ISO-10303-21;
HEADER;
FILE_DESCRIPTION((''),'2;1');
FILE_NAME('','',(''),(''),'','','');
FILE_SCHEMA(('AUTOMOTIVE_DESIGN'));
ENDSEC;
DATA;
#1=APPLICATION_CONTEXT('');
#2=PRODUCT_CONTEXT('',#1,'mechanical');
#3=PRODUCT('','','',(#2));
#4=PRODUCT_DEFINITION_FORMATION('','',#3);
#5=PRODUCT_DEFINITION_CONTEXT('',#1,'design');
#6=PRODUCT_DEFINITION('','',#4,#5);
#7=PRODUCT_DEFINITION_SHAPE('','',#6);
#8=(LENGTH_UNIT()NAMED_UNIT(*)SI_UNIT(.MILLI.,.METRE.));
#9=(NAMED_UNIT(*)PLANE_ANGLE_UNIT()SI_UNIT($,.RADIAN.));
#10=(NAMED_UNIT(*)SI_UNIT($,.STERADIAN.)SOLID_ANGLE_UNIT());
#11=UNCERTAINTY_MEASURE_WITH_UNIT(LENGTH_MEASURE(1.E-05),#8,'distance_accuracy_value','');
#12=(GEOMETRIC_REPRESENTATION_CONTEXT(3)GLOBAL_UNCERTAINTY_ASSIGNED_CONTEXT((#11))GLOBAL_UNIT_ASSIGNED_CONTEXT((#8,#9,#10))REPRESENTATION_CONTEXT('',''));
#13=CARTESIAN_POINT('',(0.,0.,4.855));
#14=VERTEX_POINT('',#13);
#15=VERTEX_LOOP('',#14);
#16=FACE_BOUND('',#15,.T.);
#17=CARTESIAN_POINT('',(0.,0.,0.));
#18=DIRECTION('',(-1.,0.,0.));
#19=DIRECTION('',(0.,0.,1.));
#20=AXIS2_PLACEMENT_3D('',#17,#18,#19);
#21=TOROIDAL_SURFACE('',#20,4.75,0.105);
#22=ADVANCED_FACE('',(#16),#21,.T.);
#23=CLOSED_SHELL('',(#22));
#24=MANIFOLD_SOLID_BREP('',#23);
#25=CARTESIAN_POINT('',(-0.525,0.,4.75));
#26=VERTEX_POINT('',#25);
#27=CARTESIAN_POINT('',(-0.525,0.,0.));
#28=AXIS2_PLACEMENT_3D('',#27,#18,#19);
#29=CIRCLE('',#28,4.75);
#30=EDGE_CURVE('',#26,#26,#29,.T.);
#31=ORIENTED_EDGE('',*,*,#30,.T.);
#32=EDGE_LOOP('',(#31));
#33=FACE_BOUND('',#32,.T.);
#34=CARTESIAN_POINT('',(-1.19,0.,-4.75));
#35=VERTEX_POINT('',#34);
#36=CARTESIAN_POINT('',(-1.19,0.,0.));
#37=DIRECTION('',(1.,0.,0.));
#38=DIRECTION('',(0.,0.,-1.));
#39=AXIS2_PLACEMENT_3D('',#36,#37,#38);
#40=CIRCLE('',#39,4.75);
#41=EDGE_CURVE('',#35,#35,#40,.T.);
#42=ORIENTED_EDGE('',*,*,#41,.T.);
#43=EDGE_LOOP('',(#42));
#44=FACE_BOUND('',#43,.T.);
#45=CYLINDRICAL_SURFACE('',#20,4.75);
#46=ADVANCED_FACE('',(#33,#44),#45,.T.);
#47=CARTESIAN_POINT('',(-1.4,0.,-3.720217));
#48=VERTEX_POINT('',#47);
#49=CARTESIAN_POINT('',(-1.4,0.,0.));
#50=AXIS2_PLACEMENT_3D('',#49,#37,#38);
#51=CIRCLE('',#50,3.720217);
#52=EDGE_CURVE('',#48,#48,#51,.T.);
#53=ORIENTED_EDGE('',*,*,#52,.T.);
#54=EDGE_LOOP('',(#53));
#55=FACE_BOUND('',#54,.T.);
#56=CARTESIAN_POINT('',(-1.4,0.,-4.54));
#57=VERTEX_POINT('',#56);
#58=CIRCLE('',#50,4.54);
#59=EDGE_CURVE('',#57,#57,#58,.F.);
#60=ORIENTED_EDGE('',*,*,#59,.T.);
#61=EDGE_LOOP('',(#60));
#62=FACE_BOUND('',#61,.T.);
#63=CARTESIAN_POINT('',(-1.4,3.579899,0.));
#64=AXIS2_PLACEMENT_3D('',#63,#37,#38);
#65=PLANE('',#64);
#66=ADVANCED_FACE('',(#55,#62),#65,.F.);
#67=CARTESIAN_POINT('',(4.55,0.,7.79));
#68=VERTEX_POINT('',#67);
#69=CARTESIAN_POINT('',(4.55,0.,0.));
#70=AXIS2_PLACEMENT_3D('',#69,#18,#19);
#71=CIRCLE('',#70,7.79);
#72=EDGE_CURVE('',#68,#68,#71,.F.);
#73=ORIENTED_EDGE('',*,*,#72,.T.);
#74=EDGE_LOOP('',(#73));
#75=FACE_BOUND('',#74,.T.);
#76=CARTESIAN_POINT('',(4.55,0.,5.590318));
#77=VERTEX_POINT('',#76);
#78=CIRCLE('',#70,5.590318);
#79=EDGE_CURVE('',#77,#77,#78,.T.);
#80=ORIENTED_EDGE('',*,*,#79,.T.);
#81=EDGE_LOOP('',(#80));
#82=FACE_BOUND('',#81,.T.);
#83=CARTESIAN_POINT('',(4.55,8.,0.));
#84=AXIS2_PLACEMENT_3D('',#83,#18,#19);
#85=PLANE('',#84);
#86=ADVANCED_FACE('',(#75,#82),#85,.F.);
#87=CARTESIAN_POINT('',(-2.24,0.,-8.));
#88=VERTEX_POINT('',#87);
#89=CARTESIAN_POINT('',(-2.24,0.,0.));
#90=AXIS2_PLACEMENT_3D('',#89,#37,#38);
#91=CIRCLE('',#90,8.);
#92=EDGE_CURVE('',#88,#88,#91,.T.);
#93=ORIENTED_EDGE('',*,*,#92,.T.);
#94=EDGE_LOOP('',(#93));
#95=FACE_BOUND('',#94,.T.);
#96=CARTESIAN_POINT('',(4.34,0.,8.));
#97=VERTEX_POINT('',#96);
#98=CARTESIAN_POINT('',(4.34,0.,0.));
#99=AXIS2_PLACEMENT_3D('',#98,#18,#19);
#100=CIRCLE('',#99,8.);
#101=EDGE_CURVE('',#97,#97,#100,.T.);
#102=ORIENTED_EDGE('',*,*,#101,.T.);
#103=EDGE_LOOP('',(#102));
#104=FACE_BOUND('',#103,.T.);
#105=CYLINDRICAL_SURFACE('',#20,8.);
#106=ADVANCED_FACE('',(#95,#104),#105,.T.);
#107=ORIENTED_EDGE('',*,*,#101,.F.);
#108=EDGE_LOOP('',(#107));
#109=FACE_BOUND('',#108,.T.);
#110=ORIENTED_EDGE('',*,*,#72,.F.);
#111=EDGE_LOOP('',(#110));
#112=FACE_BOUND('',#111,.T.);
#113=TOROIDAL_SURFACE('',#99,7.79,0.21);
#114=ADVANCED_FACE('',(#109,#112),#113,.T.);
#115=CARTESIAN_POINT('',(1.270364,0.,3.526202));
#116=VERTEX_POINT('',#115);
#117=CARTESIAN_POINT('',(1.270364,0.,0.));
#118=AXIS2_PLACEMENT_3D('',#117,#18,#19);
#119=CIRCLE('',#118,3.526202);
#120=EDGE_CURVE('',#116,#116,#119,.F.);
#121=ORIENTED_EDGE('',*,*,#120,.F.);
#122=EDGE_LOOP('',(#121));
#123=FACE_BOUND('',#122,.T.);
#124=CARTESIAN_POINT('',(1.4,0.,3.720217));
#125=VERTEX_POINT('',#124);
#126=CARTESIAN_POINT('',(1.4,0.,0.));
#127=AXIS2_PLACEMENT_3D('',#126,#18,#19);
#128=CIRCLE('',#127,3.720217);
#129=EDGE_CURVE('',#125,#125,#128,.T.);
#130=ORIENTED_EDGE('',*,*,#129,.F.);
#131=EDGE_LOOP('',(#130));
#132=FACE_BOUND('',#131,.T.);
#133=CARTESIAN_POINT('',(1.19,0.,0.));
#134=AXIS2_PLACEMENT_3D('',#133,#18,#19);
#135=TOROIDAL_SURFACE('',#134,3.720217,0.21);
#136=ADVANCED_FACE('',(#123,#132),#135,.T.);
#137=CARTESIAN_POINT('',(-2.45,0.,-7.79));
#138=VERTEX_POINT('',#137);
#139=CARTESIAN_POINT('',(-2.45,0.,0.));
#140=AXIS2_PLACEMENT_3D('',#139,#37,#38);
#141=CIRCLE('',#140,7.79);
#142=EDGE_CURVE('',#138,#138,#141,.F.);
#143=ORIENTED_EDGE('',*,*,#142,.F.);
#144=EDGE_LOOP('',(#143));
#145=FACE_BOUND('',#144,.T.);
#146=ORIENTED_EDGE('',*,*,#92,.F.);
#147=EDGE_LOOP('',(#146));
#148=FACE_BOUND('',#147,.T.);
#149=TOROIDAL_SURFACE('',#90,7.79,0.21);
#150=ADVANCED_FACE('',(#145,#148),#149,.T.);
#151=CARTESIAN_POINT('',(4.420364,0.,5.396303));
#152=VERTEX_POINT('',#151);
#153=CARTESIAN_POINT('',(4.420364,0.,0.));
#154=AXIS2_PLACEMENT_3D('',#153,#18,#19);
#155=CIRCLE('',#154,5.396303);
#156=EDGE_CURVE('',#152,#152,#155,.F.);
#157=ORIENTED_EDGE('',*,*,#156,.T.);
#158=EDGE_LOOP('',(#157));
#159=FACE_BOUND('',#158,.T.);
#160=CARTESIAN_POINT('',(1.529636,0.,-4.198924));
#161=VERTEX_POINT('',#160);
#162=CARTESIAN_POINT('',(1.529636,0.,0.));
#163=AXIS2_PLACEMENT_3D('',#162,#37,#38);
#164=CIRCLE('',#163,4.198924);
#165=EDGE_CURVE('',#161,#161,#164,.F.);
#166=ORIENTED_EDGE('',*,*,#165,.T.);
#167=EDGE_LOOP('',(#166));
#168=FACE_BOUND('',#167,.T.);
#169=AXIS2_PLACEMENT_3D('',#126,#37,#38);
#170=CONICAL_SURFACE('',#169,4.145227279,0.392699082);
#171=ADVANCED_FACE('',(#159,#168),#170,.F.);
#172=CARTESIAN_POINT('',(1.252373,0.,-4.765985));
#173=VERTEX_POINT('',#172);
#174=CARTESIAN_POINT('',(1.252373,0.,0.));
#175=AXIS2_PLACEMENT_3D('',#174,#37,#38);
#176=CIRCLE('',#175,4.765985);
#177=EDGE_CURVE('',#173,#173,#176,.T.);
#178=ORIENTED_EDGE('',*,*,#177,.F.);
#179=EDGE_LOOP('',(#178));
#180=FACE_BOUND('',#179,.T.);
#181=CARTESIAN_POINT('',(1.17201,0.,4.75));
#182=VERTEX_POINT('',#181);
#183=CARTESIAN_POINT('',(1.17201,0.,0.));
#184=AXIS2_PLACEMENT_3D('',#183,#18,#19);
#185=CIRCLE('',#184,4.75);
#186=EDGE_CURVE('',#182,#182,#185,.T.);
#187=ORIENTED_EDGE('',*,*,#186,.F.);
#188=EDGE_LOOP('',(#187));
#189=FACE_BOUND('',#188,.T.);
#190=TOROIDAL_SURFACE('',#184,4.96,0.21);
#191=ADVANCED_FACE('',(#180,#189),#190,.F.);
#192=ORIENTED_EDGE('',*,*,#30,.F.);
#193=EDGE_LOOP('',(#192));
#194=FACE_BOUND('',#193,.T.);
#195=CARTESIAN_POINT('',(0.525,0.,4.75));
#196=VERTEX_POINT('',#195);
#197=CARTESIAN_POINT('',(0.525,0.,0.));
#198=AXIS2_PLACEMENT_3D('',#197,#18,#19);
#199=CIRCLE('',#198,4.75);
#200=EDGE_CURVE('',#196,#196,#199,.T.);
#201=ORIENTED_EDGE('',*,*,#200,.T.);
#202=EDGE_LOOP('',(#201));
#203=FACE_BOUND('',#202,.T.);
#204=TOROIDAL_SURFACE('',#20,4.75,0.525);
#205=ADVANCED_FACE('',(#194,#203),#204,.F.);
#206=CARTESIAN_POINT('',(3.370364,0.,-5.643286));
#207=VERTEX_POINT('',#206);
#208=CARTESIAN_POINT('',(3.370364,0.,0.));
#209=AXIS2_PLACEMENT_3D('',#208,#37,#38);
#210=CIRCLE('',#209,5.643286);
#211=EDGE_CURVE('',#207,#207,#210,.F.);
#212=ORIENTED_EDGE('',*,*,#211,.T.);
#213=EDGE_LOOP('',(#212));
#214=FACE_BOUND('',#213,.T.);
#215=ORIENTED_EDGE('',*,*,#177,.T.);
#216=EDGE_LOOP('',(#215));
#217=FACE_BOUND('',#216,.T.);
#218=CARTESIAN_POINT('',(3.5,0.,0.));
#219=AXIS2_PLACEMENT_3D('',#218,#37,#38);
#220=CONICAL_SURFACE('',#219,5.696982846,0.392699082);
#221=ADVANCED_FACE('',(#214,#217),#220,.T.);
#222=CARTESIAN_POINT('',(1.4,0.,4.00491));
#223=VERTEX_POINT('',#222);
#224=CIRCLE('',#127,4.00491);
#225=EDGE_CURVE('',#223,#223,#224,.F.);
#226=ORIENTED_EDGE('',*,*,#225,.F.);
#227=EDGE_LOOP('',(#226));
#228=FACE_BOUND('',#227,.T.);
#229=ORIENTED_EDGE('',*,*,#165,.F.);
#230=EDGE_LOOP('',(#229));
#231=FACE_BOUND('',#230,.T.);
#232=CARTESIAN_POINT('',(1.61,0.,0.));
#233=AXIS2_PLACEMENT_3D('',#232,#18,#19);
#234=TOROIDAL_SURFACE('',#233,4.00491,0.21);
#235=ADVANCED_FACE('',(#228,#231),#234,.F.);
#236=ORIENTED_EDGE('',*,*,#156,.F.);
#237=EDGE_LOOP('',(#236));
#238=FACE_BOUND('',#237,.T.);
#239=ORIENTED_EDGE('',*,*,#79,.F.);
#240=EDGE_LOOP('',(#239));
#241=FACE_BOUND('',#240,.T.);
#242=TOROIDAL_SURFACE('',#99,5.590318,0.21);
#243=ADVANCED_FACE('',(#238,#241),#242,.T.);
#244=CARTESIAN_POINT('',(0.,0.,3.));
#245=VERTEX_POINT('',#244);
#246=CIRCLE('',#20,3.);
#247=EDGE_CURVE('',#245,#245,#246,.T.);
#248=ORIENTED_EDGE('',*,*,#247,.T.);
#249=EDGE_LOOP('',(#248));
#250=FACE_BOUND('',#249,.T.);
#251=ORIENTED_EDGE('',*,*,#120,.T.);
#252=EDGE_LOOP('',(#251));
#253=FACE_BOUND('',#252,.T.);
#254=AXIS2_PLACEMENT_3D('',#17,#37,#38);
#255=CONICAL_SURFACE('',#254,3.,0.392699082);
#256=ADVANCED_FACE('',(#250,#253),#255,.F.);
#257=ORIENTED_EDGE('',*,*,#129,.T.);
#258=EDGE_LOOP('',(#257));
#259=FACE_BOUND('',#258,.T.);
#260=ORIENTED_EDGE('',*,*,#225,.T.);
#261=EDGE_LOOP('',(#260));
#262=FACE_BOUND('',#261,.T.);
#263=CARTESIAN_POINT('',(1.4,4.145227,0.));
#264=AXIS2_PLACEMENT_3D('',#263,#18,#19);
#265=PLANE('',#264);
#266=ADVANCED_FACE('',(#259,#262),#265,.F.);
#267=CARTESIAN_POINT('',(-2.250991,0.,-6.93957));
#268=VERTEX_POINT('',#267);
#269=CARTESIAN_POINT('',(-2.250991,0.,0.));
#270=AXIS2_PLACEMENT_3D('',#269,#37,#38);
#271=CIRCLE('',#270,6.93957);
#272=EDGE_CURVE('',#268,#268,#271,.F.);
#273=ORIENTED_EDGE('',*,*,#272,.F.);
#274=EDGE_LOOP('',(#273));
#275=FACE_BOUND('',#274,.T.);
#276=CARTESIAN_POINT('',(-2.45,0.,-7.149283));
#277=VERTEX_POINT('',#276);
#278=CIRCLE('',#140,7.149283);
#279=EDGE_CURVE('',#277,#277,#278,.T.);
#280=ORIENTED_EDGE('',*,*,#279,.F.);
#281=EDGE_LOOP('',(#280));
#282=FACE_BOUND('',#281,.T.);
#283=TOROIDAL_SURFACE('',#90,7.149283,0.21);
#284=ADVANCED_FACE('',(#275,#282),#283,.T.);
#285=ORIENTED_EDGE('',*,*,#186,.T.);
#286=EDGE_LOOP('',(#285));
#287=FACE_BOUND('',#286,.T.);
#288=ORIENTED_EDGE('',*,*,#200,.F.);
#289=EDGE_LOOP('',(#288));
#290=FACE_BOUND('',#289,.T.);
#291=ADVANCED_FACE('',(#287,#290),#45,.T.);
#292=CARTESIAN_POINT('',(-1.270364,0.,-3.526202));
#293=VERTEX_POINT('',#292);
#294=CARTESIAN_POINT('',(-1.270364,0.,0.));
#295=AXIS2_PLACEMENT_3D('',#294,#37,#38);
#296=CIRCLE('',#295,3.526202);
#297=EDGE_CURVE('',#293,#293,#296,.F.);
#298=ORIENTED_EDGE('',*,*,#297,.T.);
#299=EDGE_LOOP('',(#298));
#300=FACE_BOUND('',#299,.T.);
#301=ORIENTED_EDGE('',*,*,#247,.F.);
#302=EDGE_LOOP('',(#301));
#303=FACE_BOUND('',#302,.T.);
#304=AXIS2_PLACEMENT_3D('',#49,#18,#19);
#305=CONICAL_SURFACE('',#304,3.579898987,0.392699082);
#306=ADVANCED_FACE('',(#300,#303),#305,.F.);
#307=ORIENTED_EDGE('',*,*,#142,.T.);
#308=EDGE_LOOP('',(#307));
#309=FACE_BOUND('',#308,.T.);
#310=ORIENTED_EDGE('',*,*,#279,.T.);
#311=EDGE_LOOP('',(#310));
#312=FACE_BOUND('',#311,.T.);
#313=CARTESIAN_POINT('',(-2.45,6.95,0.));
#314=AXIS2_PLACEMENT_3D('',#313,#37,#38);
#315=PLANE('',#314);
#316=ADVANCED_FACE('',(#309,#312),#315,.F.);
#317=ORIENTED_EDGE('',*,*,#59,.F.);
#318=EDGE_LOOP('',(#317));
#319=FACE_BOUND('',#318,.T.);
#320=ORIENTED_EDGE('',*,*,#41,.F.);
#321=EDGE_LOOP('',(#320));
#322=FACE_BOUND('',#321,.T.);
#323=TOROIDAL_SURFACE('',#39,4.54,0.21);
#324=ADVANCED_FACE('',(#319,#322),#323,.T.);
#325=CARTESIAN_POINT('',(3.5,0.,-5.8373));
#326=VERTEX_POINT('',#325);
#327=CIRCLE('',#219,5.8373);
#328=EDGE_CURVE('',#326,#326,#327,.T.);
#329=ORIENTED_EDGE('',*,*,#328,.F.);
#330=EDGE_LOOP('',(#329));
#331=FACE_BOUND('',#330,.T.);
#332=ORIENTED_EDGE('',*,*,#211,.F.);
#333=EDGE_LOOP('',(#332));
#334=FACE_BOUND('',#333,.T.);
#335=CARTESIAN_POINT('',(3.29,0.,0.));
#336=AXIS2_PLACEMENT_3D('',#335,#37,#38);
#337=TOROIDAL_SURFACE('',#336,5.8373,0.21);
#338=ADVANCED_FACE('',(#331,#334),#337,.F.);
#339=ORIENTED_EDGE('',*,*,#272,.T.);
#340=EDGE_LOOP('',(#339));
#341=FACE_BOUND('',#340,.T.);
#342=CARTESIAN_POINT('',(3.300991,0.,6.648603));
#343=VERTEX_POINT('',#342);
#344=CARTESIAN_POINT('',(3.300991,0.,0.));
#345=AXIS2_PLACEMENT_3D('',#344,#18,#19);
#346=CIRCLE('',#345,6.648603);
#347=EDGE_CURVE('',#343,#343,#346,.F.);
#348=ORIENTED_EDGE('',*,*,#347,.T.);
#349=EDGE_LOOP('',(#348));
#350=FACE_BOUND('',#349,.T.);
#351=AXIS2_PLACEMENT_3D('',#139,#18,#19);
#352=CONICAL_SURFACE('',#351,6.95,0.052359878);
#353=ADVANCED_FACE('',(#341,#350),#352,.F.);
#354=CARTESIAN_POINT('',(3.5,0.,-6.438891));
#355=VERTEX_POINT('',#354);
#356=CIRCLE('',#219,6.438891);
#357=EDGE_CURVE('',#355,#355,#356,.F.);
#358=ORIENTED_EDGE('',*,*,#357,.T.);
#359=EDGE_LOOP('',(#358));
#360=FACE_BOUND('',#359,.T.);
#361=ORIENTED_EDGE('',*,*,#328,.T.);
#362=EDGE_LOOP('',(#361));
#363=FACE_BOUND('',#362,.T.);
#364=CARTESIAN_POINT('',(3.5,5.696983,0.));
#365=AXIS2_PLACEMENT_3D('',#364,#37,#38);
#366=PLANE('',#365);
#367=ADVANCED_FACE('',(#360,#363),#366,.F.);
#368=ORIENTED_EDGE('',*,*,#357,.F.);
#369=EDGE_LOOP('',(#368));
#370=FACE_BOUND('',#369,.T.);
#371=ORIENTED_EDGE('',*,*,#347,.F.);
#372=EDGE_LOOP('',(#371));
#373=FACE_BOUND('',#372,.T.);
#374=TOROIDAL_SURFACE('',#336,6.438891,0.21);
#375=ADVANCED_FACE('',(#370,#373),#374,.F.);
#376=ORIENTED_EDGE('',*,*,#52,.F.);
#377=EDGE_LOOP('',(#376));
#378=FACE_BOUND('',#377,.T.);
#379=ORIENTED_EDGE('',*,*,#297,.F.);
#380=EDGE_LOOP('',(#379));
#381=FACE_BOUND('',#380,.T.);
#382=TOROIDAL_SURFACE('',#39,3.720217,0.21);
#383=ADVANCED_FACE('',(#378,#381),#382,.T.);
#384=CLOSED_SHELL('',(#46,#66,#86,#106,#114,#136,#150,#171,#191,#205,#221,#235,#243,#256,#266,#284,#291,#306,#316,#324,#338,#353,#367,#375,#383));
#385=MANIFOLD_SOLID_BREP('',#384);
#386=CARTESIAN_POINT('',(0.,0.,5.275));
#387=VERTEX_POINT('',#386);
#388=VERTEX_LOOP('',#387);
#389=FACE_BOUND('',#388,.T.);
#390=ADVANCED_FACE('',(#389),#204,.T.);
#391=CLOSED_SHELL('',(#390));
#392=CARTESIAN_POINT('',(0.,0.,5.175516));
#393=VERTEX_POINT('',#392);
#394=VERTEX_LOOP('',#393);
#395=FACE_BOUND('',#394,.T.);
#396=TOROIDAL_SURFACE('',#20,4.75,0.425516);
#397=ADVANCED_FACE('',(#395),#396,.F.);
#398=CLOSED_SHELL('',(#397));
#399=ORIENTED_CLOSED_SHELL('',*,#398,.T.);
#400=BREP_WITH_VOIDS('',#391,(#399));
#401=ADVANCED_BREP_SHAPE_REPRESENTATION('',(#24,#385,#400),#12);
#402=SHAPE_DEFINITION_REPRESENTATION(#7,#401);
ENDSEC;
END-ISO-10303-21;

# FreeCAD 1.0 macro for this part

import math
import FreeCAD as App
import Part
import Sketcher
Q = App.Units.Quantity


def edges_at(feature, points):
    """Names of the edges that pass closest to the given points."""
    edges = feature.Shape.Edges
    near = lambda p: min(range(len(edges)), key=lambda i: edges[i].distToShape(Part.Vertex(*p))[0])
    return sorted({f"Edge{near(p) + 1}" for p in points})

doc = App.newDocument("Part")
body = doc.addObject("PartDesign::Body", "Body")

sketch1 = body.newObject("Sketcher::SketchObject", "Sketch")
sketch1.AttachmentSupport = (doc.getObject("XY_Plane"), [""])
sketch1.MapMode = "FlatFace"
sketch1.addGeometry(Part.LineSegment(App.Vector(4.5, 8, 0), App.Vector(-2.5, 8, 0)), False)
sketch1.addGeometry(Part.LineSegment(App.Vector(-2.5, 8, 0), App.Vector(-2.5, 7, 0)), False)
sketch1.addGeometry(Part.LineSegment(App.Vector(-2.5, 7, 0), App.Vector(3.5, 6.6, 0)), False)
sketch1.addGeometry(Part.LineSegment(App.Vector(3.5, 6.6, 0), App.Vector(3.5, 5.7, 0)), False)
sketch1.addGeometry(Part.LineSegment(App.Vector(3.5, 5.7, 0), App.Vector(1.2, 4.8, 0)), False)
sketch1.addGeometry(Part.LineSegment(App.Vector(1.2, 4.8, 0), App.Vector(0.5, 4.8, 0)), False)
sketch1.addGeometry(Part.ArcOfCircle(Part.Circle(App.Vector(0, 4.8, 0), App.Vector(0, 0, 1), 0.5), math.radians(180), math.radians(360)), False)
sketch1.addGeometry(Part.LineSegment(App.Vector(-0.5, 4.8, 0), App.Vector(-1.4, 4.8, 0)), False)
sketch1.addGeometry(Part.LineSegment(App.Vector(-1.4, 4.8, 0), App.Vector(-1.4, 3.6, 0)), False)
sketch1.addGeometry(Part.LineSegment(App.Vector(-1.4, 3.6, 0), App.Vector(0, 3, 0)), False)
sketch1.addGeometry(Part.LineSegment(App.Vector(0, 3, 0), App.Vector(1.4, 3.6, 0)), False)
sketch1.addGeometry(Part.LineSegment(App.Vector(1.4, 3.6, 0), App.Vector(1.4, 4.1, 0)), False)
sketch1.addGeometry(Part.LineSegment(App.Vector(1.4, 4.1, 0), App.Vector(4.5, 5.5, 0)), False)
sketch1.addGeometry(Part.LineSegment(App.Vector(4.5, 5.5, 0), App.Vector(4.5, 8, 0)), False)
sketch1.addConstraint(Sketcher.Constraint("Coincident", 0, 2, 1, 1))
sketch1.addConstraint(Sketcher.Constraint("Coincident", 1, 2, 2, 1))
sketch1.addConstraint(Sketcher.Constraint("Coincident", 2, 2, 3, 1))
sketch1.addConstraint(Sketcher.Constraint("Coincident", 3, 2, 4, 1))
sketch1.addConstraint(Sketcher.Constraint("Coincident", 4, 2, 5, 1))
sketch1.addConstraint(Sketcher.Constraint("Coincident", 5, 2, 6, 2))
sketch1.addConstraint(Sketcher.Constraint("Coincident", 6, 1, 7, 1))
sketch1.addConstraint(Sketcher.Constraint("Coincident", 7, 2, 8, 1))
sketch1.addConstraint(Sketcher.Constraint("Coincident", 8, 2, 9, 1))
sketch1.addConstraint(Sketcher.Constraint("Coincident", 9, 2, 10, 1))
sketch1.addConstraint(Sketcher.Constraint("Coincident", 10, 2, 11, 1))
sketch1.addConstraint(Sketcher.Constraint("Coincident", 11, 2, 12, 1))
sketch1.addConstraint(Sketcher.Constraint("Coincident", 12, 2, 13, 1))
sketch1.addConstraint(Sketcher.Constraint("Coincident", 13, 2, 0, 1))
sketch1.addConstraint(Sketcher.Constraint("Horizontal", 0))
sketch1.addConstraint(Sketcher.Constraint("Vertical", 1))
sketch1.addConstraint(Sketcher.Constraint("Vertical", 3))
sketch1.addConstraint(Sketcher.Constraint("Horizontal", 5))
sketch1.addConstraint(Sketcher.Constraint("Horizontal", 7))
sketch1.addConstraint(Sketcher.Constraint("Vertical", 8))
sketch1.addConstraint(Sketcher.Constraint("Vertical", 11))
sketch1.addConstraint(Sketcher.Constraint("Vertical", 13))
sketch1.addConstraint(Sketcher.Constraint("Symmetric", 5, 2, 6, 1, -2))
sketch1.addConstraint(Sketcher.Constraint("Symmetric", 8, 2, 10, 2, -2))
sketch1.addConstraint(Sketcher.Constraint("PointOnObject", 9, 2, -2))
sketch1.addConstraint(Sketcher.Constraint("Parallel", 4, 10))
sketch1.addConstraint(Sketcher.Constraint("Parallel", 10, 12))
sketch1.addConstraint(Sketcher.Constraint("Horizontal", 6, 3, 4, 2))
sketch1.addConstraint(Sketcher.Constraint("DistanceX", 0, 2, 0, 1, Q("7 mm")))
sketch1.addConstraint(Sketcher.Constraint("Angle", 2, Q("-3 deg")))
sketch1.addConstraint(Sketcher.Constraint("DistanceY", -1, 1, 0, 2, Q("8 mm")))
sketch1.addConstraint(Sketcher.Constraint("DistanceY", -1, 1, 9, 2, Q("3 mm")))
sketch1.addConstraint(Sketcher.Constraint("Angle", 4, Q("-157.5 deg")))
sketch1.addConstraint(Sketcher.Constraint("Radius", 6, Q("0.525 mm")))
sketch1.addConstraint(Sketcher.Constraint("DistanceY", 1, 2, 1, 1, Q("1.05 mm")))
sketch1.addConstraint(Sketcher.Constraint("DistanceY", 13, 1, 13, 2, Q("2.55 mm")))
sketch1.addConstraint(Sketcher.Constraint("DistanceX", -1, 1, 2, 2, Q("3.5 mm")))
sketch1.addConstraint(Sketcher.Constraint("DistanceX", 7, 2, -1, 1, Q("1.4 mm")))
sketch1.addConstraint(Sketcher.Constraint("DistanceY", 6, 3, 1, 2, Q("2.2 mm")))
sketch1.addConstraint(Sketcher.Constraint("DistanceX", 0, 2, -1, 1, Q("2.45 mm")))
sketch1.addConstraint(Sketcher.Constraint("DistanceX", 5, 2, 5, 1, Q("0.688781 mm")))
revolution = body.newObject("PartDesign::Revolution", "Revolution")
revolution.Profile = sketch1
revolution.ReferenceAxis = (sketch1, ["H_Axis"])
revolution.Angle = 360
doc.recompute()

fillet = body.newObject("PartDesign::Fillet", "Fillet")
fillet.Base = (revolution, edges_at(revolution, [
    (-1.4, 0, -3.58),
    (-1.4, 0, -4.75),
    (1.214, 0, -4.75),
    (3.5, 0, -5.697),
    (3.5, 0, -6.638),
    (-2.45, 0, -6.95),
    (-2.45, 0, -8),
    (4.55, 0, -8),
    (4.55, 0, -5.45),
    (1.4, 0, -4.145),
    (1.4, 0, -3.58),
]))
fillet.Radius = 0.21
body2 = doc.addObject("PartDesign::Body", "Body001")
body2.AllowCompound = True

sketch2 = body2.newObject("Sketcher::SketchObject", "Sketch001")
sketch2.AttachmentSupport = (doc.getObject("XZ_Plane001"), [""])
sketch2.MapMode = "FlatFace"
sketch2.addGeometry(Part.Circle(App.Vector(0, -4.75, 0), App.Vector(0, 0, 1), 0.53), False)
sketch2.addGeometry(Part.Circle(App.Vector(0, -4.75, 0), App.Vector(0, 0, 1), 0.43), False)
sketch2.addGeometry(Part.Circle(App.Vector(0, -4.75, 0), App.Vector(0, 0, 1), 0.1), False)
sketch2.addConstraint(Sketcher.Constraint("Coincident", 1, 3, 0, 3))
sketch2.addConstraint(Sketcher.Constraint("Coincident", 2, 3, 0, 3))
sketch2.addConstraint(Sketcher.Constraint("PointOnObject", 0, 3, -2))
sketch2.addConstraint(Sketcher.Constraint("Diameter", 0, Q("1.05 mm")))
sketch2.addConstraint(Sketcher.Constraint("Diameter", 2, Q("0.21 mm")))
sketch2.addConstraint(Sketcher.Constraint("DistanceY", 0, 3, -1, 1, Q("4.75 mm")))
sketch2.addConstraint(Sketcher.Constraint("Diameter", 1, Q("0.851033 mm")))
revolution2 = body2.newObject("PartDesign::Revolution", "Revolution001")
revolution2.Profile = sketch2
revolution2.ReferenceAxis = (sketch2, ["H_Axis"])
revolution2.Angle = 360

doc.recompute()
